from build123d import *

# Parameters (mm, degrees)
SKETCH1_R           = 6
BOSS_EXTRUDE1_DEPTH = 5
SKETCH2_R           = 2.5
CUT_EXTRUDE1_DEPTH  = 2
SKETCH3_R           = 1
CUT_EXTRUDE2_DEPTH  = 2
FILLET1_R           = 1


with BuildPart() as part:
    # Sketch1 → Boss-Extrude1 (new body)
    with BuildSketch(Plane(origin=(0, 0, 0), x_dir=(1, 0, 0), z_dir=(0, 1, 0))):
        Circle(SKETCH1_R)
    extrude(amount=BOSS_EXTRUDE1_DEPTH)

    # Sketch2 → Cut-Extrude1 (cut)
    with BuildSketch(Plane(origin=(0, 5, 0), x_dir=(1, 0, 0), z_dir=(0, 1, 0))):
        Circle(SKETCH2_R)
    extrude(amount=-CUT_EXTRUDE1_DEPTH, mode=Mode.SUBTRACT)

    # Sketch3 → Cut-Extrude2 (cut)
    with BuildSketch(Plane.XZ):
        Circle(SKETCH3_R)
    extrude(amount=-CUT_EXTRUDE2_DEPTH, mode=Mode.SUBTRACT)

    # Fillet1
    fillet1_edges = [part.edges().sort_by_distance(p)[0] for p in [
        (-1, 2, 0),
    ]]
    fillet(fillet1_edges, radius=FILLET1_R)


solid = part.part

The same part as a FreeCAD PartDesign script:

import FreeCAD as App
import Part
import Sketcher
Q = App.Units.Quantity


def edges_at(feature, points):
    """Names of the edges that pass closest to the given points."""
    edges = feature.Shape.Edges
    near = lambda p: min(range(len(edges)), key=lambda i: edges[i].distToShape(Part.Vertex(*p))[0])
    return sorted({f"Edge{near(p) + 1}" for p in points})

doc = App.newDocument("Part")
body = doc.addObject("PartDesign::Body", "Body")

# Sketch on XZ plane
sketch1 = body.newObject("Sketcher::SketchObject", "Sketch")
sketch1.AttachmentSupport = (doc.getObject("XZ_Plane"), [""])
sketch1.MapMode = "FlatFace"
sketch1.addGeometry(Part.Circle(App.Vector(0, 0, 0), App.Vector(0, 0, 1), 6), False)
sketch1.addConstraint(Sketcher.Constraint("Coincident", 0, 3, -1, 1))
sketch1.addConstraint(Sketcher.Constraint("Diameter", 0, Q("12 mm")))
pad1 = body.newObject("PartDesign::Pad", "Pad")
pad1.Profile = sketch1
pad1.Length = 5
pad1.Reversed = True

# Sketch on XZ plane
sketch2 = body.newObject("Sketcher::SketchObject", "Sketch001")
sketch2.AttachmentSupport = (doc.getObject("XZ_Plane"), [""])
sketch2.MapMode = "FlatFace"
sketch2.AttachmentOffset = App.Placement(App.Vector(0, 0, -5), App.Rotation())
sketch2.addGeometry(Part.Circle(App.Vector(0, 0, 0), App.Vector(0, 0, 1), 2.5), False)
sketch2.addConstraint(Sketcher.Constraint("Coincident", 0, 3, -1, 1))
sketch2.addConstraint(Sketcher.Constraint("Diameter", 0, Q("5 mm")))
pocket1 = body.newObject("PartDesign::Pocket", "Pocket")
pocket1.Profile = sketch2
pocket1.Length = 2
pocket1.Reversed = True

# Sketch on XZ plane
sketch3 = body.newObject("Sketcher::SketchObject", "Sketch002")
sketch3.AttachmentSupport = (doc.getObject("XZ_Plane"), [""])
sketch3.MapMode = "FlatFace"
sketch3.addGeometry(Part.Circle(App.Vector(0, 0, 0), App.Vector(0, 0, 1), 1), False)
sketch3.addConstraint(Sketcher.Constraint("Coincident", 0, 3, -1, 1))
sketch3.addConstraint(Sketcher.Constraint("Diameter", 0, Q("2 mm")))
pocket2 = body.newObject("PartDesign::Pocket", "Pocket001")
pocket2.Profile = sketch3
pocket2.Length = 2
doc.recompute()

fillet = body.newObject("PartDesign::Fillet", "Fillet")
fillet.Base = (pocket2, edges_at(pocket2, [(-1, 2, 0)]))
fillet.Radius = 1

doc.recompute()
